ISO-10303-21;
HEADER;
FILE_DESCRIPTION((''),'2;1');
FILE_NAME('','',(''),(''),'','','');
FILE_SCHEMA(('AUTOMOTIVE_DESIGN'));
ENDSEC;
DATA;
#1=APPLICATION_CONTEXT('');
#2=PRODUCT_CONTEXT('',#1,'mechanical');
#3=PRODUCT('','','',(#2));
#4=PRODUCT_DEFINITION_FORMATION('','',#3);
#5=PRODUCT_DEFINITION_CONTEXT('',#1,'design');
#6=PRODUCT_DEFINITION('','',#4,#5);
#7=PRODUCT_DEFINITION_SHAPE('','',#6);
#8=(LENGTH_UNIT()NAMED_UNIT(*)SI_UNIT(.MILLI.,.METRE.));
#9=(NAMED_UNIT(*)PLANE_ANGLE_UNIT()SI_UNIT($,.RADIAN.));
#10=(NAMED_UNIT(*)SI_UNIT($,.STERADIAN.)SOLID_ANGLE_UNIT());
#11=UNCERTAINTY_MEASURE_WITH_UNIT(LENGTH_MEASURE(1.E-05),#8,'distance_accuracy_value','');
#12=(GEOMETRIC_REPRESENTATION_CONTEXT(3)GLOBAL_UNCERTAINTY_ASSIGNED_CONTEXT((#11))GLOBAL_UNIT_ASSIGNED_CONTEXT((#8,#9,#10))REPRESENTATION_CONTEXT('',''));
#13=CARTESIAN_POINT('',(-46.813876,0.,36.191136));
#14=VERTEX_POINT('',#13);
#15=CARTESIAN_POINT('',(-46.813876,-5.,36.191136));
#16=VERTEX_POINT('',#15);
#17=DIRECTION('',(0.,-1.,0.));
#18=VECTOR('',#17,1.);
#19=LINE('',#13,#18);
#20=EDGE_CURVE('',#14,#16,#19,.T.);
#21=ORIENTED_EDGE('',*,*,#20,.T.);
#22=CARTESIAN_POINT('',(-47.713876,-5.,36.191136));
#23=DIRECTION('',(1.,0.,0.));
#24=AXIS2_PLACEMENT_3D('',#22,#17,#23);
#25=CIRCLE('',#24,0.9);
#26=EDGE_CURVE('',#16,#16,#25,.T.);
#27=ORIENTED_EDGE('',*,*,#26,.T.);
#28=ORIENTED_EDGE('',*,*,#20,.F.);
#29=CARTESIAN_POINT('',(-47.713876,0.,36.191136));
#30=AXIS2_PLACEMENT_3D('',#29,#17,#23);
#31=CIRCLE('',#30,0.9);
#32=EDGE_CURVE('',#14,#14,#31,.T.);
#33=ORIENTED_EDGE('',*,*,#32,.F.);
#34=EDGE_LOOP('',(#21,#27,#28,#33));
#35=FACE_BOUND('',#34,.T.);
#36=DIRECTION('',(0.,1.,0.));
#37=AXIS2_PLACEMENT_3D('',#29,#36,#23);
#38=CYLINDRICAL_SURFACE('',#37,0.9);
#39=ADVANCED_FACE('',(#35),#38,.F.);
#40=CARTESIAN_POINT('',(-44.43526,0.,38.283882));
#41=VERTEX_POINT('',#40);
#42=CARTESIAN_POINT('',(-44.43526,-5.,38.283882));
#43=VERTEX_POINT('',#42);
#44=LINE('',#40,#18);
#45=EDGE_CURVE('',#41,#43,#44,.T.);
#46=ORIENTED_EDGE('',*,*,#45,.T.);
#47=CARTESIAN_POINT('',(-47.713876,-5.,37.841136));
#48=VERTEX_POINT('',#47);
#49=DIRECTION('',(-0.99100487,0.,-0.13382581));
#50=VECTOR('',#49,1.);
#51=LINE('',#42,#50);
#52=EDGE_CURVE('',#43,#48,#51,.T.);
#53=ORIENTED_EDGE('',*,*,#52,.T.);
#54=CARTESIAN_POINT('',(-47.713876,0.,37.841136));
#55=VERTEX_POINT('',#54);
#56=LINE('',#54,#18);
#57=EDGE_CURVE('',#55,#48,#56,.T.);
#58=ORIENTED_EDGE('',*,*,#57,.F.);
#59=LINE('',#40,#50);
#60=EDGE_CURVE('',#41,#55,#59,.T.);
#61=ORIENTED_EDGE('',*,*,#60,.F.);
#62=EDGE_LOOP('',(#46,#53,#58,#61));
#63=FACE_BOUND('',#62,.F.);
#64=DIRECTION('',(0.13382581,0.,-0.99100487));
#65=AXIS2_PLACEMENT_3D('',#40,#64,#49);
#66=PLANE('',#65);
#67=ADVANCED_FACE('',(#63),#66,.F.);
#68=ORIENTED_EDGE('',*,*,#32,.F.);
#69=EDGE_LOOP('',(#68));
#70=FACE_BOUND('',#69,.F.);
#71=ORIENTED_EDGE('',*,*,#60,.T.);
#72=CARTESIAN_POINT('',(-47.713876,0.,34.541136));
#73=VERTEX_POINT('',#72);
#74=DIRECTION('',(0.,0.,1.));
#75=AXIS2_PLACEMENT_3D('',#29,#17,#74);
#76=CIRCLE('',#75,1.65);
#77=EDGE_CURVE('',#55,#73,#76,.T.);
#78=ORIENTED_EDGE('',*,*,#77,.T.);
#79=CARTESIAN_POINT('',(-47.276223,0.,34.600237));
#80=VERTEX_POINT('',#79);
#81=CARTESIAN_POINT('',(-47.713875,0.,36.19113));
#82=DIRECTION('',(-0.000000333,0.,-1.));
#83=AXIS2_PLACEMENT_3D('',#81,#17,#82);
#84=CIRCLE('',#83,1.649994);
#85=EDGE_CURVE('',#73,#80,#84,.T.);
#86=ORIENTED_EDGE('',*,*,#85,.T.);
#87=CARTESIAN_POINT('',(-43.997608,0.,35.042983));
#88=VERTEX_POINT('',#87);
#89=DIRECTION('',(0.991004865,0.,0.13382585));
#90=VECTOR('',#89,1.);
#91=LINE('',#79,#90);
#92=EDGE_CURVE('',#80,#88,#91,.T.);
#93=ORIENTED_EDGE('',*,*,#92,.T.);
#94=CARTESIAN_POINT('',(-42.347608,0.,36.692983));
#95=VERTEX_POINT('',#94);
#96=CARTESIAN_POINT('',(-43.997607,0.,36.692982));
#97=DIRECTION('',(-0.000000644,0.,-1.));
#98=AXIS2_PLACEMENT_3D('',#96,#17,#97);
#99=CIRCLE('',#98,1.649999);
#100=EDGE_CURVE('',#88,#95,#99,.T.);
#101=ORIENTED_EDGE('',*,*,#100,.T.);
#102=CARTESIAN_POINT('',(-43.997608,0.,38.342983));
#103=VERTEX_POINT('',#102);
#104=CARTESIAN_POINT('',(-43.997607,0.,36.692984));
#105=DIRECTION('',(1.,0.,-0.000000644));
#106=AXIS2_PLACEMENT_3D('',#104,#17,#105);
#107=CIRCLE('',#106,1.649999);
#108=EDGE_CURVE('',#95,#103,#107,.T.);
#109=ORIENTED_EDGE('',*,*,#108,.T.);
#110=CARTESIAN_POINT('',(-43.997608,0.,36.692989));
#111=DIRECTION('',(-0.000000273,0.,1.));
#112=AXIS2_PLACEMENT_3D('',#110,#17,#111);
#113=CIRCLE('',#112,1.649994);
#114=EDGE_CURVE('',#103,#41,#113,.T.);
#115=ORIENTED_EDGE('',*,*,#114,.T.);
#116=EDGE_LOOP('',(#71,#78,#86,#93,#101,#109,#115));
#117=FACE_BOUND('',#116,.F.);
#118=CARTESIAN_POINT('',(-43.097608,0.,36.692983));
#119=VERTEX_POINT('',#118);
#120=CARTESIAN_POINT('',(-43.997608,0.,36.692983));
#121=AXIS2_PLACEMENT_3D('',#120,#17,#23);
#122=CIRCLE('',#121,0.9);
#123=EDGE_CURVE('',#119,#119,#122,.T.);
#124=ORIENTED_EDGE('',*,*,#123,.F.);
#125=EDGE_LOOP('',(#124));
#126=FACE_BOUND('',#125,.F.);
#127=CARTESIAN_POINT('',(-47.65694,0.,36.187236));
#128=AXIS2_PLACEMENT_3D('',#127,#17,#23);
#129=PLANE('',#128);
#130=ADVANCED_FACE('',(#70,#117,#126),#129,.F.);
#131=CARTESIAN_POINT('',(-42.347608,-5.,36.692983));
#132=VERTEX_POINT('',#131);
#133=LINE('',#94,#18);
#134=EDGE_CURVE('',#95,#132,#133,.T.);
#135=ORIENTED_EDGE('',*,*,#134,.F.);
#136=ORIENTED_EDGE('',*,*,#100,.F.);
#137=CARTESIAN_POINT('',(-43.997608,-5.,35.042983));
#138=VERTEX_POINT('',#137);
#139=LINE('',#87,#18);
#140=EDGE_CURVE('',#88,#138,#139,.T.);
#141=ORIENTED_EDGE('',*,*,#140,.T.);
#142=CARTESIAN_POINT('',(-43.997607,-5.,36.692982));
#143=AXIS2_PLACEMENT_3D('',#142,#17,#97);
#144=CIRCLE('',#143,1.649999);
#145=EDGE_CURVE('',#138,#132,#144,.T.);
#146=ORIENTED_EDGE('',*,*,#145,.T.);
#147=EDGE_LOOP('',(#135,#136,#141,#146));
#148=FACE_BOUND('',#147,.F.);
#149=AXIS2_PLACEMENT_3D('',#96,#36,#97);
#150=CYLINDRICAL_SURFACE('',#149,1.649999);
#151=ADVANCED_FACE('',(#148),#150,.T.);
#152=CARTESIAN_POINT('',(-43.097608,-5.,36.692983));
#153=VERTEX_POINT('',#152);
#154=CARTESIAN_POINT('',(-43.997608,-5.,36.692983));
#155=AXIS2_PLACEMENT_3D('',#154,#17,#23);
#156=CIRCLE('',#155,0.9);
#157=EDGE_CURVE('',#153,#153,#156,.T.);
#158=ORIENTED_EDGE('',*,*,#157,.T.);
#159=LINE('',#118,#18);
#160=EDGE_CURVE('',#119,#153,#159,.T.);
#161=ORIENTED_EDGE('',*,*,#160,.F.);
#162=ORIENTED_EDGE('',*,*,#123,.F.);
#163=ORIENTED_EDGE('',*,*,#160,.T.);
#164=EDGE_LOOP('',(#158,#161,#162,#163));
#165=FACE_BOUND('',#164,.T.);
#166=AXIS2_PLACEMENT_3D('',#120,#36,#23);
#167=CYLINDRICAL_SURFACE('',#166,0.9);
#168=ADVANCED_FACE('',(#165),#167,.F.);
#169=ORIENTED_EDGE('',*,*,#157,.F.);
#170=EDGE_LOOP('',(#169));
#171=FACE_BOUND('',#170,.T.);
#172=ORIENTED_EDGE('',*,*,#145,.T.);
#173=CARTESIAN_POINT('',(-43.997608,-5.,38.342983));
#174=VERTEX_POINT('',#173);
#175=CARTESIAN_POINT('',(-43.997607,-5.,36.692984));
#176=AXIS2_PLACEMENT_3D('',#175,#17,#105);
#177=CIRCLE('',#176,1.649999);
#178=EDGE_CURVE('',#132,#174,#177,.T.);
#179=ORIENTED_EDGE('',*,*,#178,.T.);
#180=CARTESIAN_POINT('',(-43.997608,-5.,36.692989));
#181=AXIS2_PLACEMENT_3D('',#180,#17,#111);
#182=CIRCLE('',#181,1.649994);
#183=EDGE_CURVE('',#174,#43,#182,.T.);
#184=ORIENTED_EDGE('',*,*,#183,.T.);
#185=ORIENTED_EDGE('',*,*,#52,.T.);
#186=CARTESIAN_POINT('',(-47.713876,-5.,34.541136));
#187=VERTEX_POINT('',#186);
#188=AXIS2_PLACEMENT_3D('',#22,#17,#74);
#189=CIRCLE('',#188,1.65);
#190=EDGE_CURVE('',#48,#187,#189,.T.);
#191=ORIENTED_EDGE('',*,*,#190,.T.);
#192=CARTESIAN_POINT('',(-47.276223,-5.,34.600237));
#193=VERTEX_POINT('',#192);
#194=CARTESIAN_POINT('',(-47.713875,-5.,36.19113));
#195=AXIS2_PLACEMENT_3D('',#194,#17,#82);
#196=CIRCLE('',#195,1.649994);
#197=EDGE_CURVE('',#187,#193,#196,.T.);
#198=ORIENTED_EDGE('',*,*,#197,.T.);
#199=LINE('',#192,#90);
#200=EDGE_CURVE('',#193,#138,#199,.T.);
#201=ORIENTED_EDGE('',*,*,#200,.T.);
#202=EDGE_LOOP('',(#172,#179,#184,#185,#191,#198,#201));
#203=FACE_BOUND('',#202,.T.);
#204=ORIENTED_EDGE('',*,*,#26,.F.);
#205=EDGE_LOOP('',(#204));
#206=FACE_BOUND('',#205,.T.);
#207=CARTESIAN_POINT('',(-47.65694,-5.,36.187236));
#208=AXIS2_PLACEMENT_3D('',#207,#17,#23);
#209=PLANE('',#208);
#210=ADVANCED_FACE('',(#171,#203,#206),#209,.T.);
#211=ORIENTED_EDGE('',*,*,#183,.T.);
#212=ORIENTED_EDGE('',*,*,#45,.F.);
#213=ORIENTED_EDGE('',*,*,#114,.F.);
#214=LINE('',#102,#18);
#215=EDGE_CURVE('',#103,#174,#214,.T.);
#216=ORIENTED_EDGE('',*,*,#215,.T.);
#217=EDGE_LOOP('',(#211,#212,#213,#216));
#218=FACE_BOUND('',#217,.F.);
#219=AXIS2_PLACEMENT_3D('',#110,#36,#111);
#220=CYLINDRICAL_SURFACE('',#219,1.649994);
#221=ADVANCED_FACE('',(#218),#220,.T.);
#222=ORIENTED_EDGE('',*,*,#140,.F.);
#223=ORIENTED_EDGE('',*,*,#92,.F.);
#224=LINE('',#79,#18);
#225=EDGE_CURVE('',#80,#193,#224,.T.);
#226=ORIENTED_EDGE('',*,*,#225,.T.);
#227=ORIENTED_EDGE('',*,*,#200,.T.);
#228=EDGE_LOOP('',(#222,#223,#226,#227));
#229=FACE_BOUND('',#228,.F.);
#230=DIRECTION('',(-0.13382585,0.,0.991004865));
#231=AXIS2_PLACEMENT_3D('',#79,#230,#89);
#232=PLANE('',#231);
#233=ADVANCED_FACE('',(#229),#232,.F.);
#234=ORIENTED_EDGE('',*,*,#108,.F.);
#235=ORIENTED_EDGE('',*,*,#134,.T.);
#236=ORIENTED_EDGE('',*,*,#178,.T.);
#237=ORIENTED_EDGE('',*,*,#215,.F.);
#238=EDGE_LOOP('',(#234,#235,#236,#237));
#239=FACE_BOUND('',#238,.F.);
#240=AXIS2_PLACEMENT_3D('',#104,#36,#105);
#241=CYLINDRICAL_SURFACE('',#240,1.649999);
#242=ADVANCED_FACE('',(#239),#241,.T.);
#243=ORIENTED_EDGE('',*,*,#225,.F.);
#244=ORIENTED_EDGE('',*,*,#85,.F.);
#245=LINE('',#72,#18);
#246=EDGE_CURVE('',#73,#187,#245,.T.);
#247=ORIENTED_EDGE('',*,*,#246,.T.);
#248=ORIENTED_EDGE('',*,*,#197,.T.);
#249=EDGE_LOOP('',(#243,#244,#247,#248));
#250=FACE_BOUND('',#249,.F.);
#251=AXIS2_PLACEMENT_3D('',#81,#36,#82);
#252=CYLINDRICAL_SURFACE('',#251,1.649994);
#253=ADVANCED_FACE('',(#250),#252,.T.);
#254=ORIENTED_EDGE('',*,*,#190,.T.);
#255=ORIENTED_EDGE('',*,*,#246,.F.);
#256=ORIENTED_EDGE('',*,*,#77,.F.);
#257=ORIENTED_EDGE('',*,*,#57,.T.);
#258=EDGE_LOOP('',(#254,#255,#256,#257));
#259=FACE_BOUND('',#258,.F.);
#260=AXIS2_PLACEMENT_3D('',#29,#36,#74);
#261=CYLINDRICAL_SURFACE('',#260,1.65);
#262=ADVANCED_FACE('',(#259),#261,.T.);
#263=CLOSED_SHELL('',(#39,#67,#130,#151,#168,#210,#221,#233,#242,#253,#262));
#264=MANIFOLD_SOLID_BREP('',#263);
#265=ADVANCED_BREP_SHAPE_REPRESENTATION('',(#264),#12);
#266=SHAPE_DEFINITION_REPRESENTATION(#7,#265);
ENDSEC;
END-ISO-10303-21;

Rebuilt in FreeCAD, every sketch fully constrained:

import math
import FreeCAD as App
import Part
import Sketcher
from FreeCAD import Vector
Q = App.Units.Quantity

doc = App.newDocument("Part")
params = doc.addObject("Spreadsheet::Sheet", "Params")
for row, (alias, value) in enumerate([
    ("sketch1_diameter", "1.8 mm"),
    ("sketch1_radius", "1.649999 mm"),
    ("pad1_length", "5 mm"),
], start=1):
    params.set(f"A{row}", alias)
    params.set(f"B{row}", "=" + value)
    params.setAlias(f"B{row}", alias)

body = doc.addObject("PartDesign::Body", "Body")

# Sketch on XZ plane
sketch1 = body.newObject("Sketcher::SketchObject", "Sketch")
sketch1.AttachmentSupport = (doc.getObject("XZ_Plane"), [""])
sketch1.MapMode = "FlatFace"
sketch1.addGeometry(Part.LineSegment(Vector(-47.28, 34.6, 0), Vector(-44, 35.04, 0)), False)
sketch1.addGeometry(Part.ArcOfCircle(Part.Circle(Vector(-44, 36.69, 0), Vector(0, 0, 1), 1.65), math.radians(-90), math.radians(0)), False)
sketch1.addGeometry(Part.ArcOfCircle(Part.Circle(Vector(-44, 36.69, 0), Vector(0, 0, 1), 1.65), math.radians(0), math.radians(90)), False)
sketch1.addGeometry(Part.ArcOfCircle(Part.Circle(Vector(-44, 36.69, 0), Vector(0, 0, 1), 1.65), math.radians(90), math.radians(105.38)), False)
sketch1.addGeometry(Part.LineSegment(Vector(-44.44, 38.28, 0), Vector(-47.71, 37.84, 0)), False)
sketch1.addGeometry(Part.ArcOfCircle(Part.Circle(Vector(-47.71, 36.19, 0), Vector(0, 0, 1), 1.65), math.radians(90), math.radians(270)), False)
sketch1.addGeometry(Part.ArcOfCircle(Part.Circle(Vector(-47.71, 36.19, 0), Vector(0, 0, 1), 1.65), math.radians(-90), math.radians(-74.62)), False)
sketch1.addGeometry(Part.Circle(Vector(-47.71, 36.19, 0), Vector(0, 0, 1), 0.9), False)
sketch1.addGeometry(Part.Circle(Vector(-44, 36.69, 0), Vector(0, 0, 1), 0.9), False)
sketch1.addConstraint(Sketcher.Constraint("Coincident", 0, 2, 1, 1))
sketch1.addConstraint(Sketcher.Constraint("Tangent", 1, 2, 2, 1))
sketch1.addConstraint(Sketcher.Constraint("Tangent", 2, 2, 3, 1))
sketch1.addConstraint(Sketcher.Constraint("Coincident", 3, 2, 4, 1))
sketch1.addConstraint(Sketcher.Constraint("Coincident", 4, 2, 5, 1))
sketch1.addConstraint(Sketcher.Constraint("Tangent", 5, 2, 6, 1))
sketch1.addConstraint(Sketcher.Constraint("Coincident", 6, 2, 0, 1))
sketch1.addConstraint(Sketcher.Constraint("Coincident", 3, 3, 1, 3))
sketch1.addConstraint(Sketcher.Constraint("Coincident", 7, 3, 5, 3))
sketch1.addConstraint(Sketcher.Constraint("Coincident", 8, 3, 1, 3))
sketch1.addConstraint(Sketcher.Constraint("Equal", 2, 5))
sketch1.addConstraint(Sketcher.Constraint("Equal", 3, 6))
sketch1.addConstraint(Sketcher.Constraint("Equal", 7, 8))
sketch1.addConstraint(Sketcher.Constraint("Parallel", 0, 4))
sketch1.addConstraint(Sketcher.Constraint("Horizontal", 8, 3, 1, 2))
sketch1.addConstraint(Sketcher.Constraint("Vertical", 8, 3, 0, 2))
sketch1.addConstraint(Sketcher.Constraint("Vertical", 0, 2, 2, 2))
sketch1.addConstraint(Sketcher.Constraint("Vertical", 7, 3, 4, 2))
sketch1.addConstraint(Sketcher.Constraint("Vertical", 4, 2, 5, 2))
sketch1.addConstraint(Sketcher.Constraint("Diameter", 7, Q("1.8 mm")))
sketch1.addConstraint(Sketcher.Constraint("Radius", 1, Q("1.649999 mm")))
sketch1.addConstraint(Sketcher.Constraint("DistanceY", 3, 2, 2, 2, Q("0.059101 mm")))
sketch1.addConstraint(Sketcher.Constraint("DistanceY", -1, 1, 1, 3, Q("36.692982 mm")))
sketch1.addConstraint(Sketcher.Constraint("DistanceY", -1, 1, 6, 3, Q("36.19113 mm")))
sketch1.addConstraint(Sketcher.Constraint("DistanceX", 1, 2, -1, 1, Q("42.347608 mm")))
sketch1.addConstraint(Sketcher.Constraint("DistanceX", 5, 3, 1, 3, Q("3.716269 mm")))
sketch1.setExpression("Constraints[19]", "Params.sketch1_diameter")
sketch1.setExpression("Constraints[20]", "Params.sketch1_radius")
pad1 = body.newObject("PartDesign::Pad", "Pad")
pad1.Profile = sketch1
pad1.setExpression("Length", "Params.pad1_length")

doc.recompute()
